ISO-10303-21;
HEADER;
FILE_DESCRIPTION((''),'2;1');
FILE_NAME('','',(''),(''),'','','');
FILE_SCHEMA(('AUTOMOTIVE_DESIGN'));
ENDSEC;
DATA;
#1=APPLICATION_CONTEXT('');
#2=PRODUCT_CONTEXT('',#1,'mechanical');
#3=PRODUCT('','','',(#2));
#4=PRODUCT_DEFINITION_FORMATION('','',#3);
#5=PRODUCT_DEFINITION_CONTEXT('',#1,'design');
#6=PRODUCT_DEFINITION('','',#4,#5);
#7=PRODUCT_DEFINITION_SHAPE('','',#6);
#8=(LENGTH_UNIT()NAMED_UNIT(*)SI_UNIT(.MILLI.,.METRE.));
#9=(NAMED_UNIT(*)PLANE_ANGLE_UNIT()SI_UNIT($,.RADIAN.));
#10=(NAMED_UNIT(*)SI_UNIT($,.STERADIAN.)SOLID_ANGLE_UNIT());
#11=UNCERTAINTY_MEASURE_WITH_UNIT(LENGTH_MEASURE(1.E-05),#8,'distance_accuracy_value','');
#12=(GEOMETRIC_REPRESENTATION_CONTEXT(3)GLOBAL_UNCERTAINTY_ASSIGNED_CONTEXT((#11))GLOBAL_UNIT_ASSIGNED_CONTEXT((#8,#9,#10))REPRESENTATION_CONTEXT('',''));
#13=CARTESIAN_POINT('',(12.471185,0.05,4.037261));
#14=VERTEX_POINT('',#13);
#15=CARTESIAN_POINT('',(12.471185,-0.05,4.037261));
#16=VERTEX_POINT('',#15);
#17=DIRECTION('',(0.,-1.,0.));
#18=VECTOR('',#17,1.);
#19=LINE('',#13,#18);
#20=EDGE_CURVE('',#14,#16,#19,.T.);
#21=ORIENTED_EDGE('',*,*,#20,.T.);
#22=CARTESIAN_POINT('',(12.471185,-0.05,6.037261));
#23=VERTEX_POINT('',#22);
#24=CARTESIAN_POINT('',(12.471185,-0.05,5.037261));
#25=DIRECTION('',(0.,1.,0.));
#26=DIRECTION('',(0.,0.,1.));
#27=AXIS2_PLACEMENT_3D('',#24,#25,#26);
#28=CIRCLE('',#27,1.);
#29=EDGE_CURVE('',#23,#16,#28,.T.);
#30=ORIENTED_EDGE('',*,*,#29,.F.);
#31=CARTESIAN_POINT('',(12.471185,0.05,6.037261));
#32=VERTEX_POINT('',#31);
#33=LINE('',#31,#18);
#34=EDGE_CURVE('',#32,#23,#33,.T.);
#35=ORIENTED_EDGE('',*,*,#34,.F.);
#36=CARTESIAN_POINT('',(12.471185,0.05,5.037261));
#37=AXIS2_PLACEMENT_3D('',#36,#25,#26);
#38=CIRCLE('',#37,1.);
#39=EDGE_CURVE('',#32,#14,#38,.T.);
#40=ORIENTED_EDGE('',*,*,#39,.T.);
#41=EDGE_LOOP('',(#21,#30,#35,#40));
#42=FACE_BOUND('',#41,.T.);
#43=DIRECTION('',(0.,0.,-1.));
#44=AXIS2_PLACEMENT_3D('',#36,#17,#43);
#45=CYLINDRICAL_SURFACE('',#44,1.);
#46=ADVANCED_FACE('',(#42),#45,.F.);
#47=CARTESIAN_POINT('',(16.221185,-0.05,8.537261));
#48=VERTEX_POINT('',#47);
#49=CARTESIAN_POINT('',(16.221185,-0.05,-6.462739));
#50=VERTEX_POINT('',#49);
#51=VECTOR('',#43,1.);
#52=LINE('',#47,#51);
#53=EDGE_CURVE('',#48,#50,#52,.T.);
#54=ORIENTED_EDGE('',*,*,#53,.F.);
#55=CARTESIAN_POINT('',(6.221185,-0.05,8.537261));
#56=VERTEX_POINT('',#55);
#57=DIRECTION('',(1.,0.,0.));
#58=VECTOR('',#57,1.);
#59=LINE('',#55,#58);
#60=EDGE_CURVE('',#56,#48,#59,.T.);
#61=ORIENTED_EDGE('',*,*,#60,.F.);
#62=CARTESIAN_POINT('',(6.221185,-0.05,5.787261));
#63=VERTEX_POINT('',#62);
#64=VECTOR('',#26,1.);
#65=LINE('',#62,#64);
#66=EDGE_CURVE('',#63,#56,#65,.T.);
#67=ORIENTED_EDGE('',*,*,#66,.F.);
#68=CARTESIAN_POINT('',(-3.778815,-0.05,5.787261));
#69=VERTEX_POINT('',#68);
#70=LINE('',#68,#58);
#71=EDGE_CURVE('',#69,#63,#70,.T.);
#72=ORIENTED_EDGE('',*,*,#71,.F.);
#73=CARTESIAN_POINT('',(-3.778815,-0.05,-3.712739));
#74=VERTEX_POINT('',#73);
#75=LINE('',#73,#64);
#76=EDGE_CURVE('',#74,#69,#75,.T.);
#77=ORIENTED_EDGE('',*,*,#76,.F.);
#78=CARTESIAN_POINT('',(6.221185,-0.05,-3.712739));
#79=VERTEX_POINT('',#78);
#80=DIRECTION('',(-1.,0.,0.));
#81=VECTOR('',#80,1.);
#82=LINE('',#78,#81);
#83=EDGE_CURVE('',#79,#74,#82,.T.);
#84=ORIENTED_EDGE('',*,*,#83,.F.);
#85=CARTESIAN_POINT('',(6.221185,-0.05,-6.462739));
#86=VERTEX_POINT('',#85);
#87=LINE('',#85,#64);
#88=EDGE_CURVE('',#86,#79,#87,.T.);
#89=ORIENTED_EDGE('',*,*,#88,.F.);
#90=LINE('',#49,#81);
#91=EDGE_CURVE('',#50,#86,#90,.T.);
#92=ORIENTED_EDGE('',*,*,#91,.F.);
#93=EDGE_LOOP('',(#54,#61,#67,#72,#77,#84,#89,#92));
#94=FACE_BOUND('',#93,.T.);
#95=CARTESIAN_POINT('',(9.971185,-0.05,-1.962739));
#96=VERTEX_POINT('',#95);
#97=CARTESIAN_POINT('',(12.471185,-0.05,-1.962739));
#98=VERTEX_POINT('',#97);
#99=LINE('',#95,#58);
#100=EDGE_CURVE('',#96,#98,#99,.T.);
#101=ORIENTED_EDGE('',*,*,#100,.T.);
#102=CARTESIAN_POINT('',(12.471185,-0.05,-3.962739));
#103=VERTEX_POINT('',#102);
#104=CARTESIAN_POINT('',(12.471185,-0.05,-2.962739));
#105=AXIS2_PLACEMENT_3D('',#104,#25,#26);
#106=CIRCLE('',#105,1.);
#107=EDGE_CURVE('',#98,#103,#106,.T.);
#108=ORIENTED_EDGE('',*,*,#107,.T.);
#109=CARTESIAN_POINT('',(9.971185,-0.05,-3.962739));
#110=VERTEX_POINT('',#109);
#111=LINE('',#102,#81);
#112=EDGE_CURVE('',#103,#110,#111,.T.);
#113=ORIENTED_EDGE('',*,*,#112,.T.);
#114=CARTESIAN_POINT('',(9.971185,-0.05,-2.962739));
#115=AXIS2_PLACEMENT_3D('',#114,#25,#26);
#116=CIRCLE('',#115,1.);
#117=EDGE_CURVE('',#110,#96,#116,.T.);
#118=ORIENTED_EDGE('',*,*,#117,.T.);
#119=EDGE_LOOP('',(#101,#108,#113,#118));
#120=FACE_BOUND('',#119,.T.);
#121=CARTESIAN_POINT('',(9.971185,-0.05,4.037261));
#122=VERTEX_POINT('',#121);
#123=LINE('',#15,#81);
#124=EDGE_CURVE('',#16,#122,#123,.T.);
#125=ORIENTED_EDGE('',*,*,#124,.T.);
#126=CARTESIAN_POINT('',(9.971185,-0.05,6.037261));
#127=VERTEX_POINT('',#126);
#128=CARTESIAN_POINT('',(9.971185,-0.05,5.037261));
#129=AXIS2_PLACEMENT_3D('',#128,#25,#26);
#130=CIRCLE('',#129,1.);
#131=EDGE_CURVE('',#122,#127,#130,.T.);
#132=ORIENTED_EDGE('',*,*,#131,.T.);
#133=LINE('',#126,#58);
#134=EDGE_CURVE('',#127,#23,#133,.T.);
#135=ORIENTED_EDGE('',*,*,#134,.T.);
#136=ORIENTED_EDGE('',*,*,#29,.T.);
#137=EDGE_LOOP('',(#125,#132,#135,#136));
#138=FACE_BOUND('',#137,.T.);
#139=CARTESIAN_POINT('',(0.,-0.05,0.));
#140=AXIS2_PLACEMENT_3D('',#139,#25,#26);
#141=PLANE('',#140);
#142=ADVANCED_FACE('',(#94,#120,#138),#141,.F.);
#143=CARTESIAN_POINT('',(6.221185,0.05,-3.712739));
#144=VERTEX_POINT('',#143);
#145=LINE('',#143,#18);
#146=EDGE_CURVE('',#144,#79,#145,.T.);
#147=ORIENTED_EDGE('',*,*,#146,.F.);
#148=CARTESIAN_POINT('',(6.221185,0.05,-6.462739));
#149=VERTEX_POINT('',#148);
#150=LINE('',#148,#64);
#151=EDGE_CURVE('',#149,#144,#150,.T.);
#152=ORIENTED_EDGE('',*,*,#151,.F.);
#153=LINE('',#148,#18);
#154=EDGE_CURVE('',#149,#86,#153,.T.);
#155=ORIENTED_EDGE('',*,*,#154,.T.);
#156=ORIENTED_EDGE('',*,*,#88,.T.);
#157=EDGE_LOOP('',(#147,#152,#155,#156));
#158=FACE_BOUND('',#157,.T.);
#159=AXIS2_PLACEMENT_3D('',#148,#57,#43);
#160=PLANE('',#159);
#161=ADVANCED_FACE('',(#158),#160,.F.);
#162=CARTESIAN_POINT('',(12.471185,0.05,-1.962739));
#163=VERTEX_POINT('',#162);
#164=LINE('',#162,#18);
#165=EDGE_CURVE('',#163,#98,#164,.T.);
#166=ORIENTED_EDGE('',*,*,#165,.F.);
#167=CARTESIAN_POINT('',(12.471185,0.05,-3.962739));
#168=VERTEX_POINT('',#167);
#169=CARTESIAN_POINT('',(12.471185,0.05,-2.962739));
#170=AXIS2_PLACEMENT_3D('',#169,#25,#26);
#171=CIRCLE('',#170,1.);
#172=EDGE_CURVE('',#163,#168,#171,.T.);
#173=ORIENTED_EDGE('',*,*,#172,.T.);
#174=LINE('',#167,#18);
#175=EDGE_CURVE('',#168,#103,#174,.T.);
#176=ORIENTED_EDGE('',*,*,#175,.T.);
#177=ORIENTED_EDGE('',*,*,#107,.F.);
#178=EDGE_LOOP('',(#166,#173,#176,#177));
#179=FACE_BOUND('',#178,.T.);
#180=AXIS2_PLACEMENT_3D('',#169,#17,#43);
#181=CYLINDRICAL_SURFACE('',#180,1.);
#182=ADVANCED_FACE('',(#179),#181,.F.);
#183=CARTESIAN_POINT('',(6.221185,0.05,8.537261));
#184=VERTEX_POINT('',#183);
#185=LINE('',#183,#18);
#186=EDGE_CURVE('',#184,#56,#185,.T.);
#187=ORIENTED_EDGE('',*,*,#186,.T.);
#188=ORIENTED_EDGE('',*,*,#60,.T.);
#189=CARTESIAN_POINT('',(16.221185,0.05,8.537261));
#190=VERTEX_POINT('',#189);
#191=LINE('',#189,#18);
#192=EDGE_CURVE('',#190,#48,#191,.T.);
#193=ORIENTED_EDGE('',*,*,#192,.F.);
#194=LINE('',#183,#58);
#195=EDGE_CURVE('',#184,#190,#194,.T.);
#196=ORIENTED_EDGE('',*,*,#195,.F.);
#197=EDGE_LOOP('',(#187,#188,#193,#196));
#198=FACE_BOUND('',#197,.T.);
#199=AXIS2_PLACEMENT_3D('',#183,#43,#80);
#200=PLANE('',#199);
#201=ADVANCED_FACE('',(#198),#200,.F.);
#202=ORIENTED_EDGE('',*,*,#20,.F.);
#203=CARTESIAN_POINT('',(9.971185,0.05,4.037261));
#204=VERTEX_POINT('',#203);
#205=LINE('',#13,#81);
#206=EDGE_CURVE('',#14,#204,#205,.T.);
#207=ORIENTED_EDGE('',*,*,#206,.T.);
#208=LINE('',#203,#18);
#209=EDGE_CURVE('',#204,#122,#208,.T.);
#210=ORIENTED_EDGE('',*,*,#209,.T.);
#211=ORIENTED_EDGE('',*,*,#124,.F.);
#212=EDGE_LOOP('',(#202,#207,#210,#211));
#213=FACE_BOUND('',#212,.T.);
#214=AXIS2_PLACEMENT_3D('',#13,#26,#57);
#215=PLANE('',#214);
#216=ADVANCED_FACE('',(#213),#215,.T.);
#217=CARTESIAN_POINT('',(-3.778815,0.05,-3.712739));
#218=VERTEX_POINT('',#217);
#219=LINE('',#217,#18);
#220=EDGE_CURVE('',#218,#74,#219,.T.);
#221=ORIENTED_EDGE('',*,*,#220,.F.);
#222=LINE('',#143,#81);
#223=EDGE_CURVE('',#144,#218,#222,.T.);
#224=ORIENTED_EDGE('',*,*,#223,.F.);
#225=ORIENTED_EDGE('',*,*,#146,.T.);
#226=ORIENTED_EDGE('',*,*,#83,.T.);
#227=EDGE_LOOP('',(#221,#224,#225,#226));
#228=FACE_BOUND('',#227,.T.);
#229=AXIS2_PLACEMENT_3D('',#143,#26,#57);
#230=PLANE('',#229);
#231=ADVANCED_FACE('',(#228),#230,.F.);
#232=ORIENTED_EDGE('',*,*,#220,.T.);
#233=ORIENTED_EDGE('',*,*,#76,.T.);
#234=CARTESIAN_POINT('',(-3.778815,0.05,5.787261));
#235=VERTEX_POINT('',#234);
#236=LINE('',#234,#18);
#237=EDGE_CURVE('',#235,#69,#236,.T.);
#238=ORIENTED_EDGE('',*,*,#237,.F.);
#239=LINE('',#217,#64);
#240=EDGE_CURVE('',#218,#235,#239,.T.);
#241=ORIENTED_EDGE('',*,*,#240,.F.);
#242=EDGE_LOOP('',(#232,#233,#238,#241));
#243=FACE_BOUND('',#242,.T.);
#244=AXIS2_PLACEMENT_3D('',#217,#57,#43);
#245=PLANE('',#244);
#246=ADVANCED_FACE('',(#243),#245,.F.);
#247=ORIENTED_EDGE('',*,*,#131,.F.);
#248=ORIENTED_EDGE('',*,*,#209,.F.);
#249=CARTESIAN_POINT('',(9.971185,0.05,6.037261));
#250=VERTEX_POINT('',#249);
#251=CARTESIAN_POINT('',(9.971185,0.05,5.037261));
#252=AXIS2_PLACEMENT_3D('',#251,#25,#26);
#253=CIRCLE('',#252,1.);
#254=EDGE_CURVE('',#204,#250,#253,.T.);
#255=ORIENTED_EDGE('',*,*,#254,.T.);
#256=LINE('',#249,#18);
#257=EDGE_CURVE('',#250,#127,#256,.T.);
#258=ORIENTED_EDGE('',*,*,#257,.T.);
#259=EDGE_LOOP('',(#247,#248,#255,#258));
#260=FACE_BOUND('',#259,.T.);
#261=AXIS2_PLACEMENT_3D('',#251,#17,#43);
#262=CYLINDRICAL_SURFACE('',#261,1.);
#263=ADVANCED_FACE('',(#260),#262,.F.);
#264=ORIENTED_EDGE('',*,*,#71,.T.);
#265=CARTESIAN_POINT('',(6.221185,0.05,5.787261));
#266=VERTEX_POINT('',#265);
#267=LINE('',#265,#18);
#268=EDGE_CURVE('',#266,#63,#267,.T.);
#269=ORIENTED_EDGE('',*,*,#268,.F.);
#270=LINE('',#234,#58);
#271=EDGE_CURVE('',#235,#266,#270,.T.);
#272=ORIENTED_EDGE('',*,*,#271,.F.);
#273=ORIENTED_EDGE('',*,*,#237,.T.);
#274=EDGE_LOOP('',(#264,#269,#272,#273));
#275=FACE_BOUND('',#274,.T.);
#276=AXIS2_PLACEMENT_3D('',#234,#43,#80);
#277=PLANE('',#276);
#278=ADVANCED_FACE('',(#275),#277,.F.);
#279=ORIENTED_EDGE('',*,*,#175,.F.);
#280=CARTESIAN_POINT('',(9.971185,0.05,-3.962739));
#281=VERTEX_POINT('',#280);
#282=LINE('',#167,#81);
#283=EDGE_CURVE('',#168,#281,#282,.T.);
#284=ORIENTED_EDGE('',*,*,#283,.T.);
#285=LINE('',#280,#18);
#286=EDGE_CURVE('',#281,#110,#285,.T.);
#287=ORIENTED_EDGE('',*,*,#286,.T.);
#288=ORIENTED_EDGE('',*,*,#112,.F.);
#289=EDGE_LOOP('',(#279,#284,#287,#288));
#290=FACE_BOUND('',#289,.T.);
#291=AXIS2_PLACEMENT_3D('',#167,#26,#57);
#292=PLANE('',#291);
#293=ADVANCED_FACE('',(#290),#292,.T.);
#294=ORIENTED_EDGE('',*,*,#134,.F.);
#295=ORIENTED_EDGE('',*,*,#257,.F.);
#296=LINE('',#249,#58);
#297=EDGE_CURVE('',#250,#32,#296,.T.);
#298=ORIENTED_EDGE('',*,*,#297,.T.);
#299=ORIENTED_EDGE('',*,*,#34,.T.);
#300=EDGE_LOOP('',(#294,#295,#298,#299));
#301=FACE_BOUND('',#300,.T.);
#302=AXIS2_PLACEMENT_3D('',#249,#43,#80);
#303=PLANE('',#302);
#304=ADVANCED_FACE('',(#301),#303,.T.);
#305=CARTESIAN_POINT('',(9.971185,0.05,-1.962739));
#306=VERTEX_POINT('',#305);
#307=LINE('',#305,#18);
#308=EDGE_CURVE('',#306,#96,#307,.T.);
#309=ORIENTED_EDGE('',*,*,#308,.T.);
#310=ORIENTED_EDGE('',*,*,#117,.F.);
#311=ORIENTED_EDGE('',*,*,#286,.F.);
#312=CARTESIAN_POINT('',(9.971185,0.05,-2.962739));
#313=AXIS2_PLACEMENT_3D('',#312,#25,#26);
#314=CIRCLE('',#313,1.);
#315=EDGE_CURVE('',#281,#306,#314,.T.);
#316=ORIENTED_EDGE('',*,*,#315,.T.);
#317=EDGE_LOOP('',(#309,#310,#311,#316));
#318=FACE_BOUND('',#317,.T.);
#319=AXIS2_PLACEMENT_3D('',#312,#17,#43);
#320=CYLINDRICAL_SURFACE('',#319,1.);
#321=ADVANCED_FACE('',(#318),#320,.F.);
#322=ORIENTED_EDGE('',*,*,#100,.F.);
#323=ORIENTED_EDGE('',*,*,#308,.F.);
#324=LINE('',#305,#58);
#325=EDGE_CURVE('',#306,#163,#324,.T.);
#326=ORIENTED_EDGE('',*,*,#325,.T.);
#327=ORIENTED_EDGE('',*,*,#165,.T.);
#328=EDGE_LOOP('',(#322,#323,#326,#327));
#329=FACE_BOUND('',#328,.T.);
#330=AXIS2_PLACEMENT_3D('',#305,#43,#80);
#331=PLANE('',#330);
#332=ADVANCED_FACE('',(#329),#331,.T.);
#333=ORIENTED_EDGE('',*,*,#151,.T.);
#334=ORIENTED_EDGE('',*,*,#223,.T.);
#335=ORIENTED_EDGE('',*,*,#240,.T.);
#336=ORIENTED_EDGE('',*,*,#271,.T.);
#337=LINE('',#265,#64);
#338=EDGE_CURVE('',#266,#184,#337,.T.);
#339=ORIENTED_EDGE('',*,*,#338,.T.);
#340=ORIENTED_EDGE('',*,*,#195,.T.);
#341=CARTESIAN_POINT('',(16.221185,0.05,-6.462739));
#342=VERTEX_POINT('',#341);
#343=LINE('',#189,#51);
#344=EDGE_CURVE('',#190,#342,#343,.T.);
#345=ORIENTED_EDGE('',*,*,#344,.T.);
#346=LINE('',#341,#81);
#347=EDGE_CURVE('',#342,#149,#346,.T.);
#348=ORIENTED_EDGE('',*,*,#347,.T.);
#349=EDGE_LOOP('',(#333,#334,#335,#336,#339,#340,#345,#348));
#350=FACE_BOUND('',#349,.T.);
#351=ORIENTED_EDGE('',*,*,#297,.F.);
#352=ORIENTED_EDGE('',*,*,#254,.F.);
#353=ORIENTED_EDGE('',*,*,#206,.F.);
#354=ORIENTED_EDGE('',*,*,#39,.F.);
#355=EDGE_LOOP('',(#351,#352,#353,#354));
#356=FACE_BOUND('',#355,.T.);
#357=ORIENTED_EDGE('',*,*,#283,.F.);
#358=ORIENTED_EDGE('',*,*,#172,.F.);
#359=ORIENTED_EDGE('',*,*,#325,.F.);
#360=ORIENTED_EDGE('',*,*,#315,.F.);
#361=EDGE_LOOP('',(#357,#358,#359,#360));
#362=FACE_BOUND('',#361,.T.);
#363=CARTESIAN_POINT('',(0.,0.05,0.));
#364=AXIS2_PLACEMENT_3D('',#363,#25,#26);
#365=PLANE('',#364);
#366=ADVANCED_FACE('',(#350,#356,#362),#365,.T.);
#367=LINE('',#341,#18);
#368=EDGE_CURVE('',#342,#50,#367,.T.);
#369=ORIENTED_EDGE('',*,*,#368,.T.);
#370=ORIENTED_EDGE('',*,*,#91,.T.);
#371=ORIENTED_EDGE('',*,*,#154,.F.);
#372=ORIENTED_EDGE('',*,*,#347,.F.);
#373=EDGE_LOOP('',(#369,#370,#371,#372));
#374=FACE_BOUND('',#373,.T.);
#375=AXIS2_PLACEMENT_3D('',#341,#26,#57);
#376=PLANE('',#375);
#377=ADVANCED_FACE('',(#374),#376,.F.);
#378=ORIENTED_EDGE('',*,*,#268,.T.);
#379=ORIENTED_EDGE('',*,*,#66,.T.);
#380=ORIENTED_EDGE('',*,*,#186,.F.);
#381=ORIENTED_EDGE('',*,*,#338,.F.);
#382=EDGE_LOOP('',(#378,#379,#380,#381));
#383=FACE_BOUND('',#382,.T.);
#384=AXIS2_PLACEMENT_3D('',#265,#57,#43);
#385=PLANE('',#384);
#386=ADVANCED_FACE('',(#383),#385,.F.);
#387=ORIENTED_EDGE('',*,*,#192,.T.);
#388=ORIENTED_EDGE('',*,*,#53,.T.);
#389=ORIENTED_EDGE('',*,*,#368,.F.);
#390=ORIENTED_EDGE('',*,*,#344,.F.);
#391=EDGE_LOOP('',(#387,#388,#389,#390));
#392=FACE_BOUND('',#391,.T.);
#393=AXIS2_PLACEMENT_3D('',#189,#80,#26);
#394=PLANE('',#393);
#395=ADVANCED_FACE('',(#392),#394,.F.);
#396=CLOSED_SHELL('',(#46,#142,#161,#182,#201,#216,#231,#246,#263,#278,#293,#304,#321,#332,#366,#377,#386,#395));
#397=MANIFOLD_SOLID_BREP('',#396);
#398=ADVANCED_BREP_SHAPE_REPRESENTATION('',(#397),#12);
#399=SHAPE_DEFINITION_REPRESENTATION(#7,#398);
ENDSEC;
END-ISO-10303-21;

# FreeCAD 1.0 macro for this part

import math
import FreeCAD as App
import Part
import Sketcher

V = App.Vector

doc = App.newDocument("Part")
params = doc.addObject("Spreadsheet::Sheet", "Params")
for row, (alias, value) in enumerate([
    ("sketch1_radius", "1 mm"),
    ("sketch1_width", "10 mm"),
    ("sketch1_height", "15 mm"),
    ("sketch1_width2", "2.5 mm"),
    ("sketch1_height2", "9.5 mm"),
    ("pad1_length", "0.1 mm"),
], start=1):
    params.set(f"A{row}", alias)
    params.set(f"B{row}", "=" + value)
    params.setAlias(f"B{row}", alias)

body = doc.addObject("PartDesign::Body", "Body")

sketch1 = body.newObject("Sketcher::SketchObject", "Sketch")
sketch1.AttachmentSupport = (doc.getObject("XZ_Plane"), [""])
sketch1.MapMode = "FlatFace"
sketch1.addGeometry(Part.LineSegment(V(-3.8, 5.8, 0), V(6.2, 5.8, 0)), False)
sketch1.addGeometry(Part.LineSegment(V(6.2, 5.8, 0), V(6.2, 8.5, 0)), False)
sketch1.addGeometry(Part.LineSegment(V(6.2, 8.5, 0), V(16.2, 8.5, 0)), False)
sketch1.addGeometry(Part.LineSegment(V(16.2, 8.5, 0), V(16.2, -6.5, 0)), False)
sketch1.addGeometry(Part.LineSegment(V(16.2, -6.5, 0), V(6.2, -6.5, 0)), False)
sketch1.addGeometry(Part.LineSegment(V(6.2, -6.5, 0), V(6.2, -3.7, 0)), False)
sketch1.addGeometry(Part.LineSegment(V(6.2, -3.7, 0), V(-3.8, -3.7, 0)), False)
sketch1.addGeometry(Part.LineSegment(V(-3.8, -3.7, 0), V(-3.8, 5.8, 0)), False)
sketch1.addGeometry(Part.LineSegment(V(10, 4, 0), V(12.5, 4, 0)), False)
sketch1.addGeometry(Part.ArcOfCircle(Part.Circle(V(12.5, 5, 0), V(0, 0, 1), 1), math.radians(-90), math.radians(90)), False)
sketch1.addGeometry(Part.LineSegment(V(12.5, 6, 0), V(10, 6, 0)), False)
sketch1.addGeometry(Part.ArcOfCircle(Part.Circle(V(10, 5, 0), V(0, 0, 1), 1), math.radians(90), math.radians(270)), False)
sketch1.addGeometry(Part.LineSegment(V(10, -4, 0), V(12.5, -4, 0)), False)
sketch1.addGeometry(Part.ArcOfCircle(Part.Circle(V(12.5, -3, 0), V(0, 0, 1), 1), math.radians(-90), math.radians(90)), False)
sketch1.addGeometry(Part.LineSegment(V(12.5, -2, 0), V(10, -2, 0)), False)
sketch1.addGeometry(Part.ArcOfCircle(Part.Circle(V(10, -3, 0), V(0, 0, 1), 1), math.radians(90), math.radians(270)), False)
sketch1.addConstraint(Sketcher.Constraint("Coincident", 0, 2, 1, 1))
sketch1.addConstraint(Sketcher.Constraint("Coincident", 1, 2, 2, 1))
sketch1.addConstraint(Sketcher.Constraint("Coincident", 2, 2, 3, 1))
sketch1.addConstraint(Sketcher.Constraint("Coincident", 3, 2, 4, 1))
sketch1.addConstraint(Sketcher.Constraint("Coincident", 4, 2, 5, 1))
sketch1.addConstraint(Sketcher.Constraint("Coincident", 5, 2, 6, 1))
sketch1.addConstraint(Sketcher.Constraint("Coincident", 6, 2, 7, 1))
sketch1.addConstraint(Sketcher.Constraint("Coincident", 7, 2, 0, 1))
sketch1.addConstraint(Sketcher.Constraint("Tangent", 8, 2, 9, 1))
sketch1.addConstraint(Sketcher.Constraint("Tangent", 9, 2, 10, 1))
sketch1.addConstraint(Sketcher.Constraint("Tangent", 10, 2, 11, 1))
sketch1.addConstraint(Sketcher.Constraint("Tangent", 11, 2, 8, 1))
sketch1.addConstraint(Sketcher.Constraint("Tangent", 12, 2, 13, 1))
sketch1.addConstraint(Sketcher.Constraint("Tangent", 13, 2, 14, 1))
sketch1.addConstraint(Sketcher.Constraint("Tangent", 14, 2, 15, 1))
sketch1.addConstraint(Sketcher.Constraint("Tangent", 15, 2, 12, 1))
sketch1.addConstraint(Sketcher.Constraint("Horizontal", 0))
sketch1.addConstraint(Sketcher.Constraint("Vertical", 1))
sketch1.addConstraint(Sketcher.Constraint("Horizontal", 2))
sketch1.addConstraint(Sketcher.Constraint("Vertical", 3))
sketch1.addConstraint(Sketcher.Constraint("Horizontal", 4))
sketch1.addConstraint(Sketcher.Constraint("Vertical", 5))
sketch1.addConstraint(Sketcher.Constraint("Horizontal", 6))
sketch1.addConstraint(Sketcher.Constraint("Vertical", 7))
sketch1.addConstraint(Sketcher.Constraint("Horizontal", 8))
sketch1.addConstraint(Sketcher.Constraint("Horizontal", 10))
sketch1.addConstraint(Sketcher.Constraint("Horizontal", 12))
sketch1.addConstraint(Sketcher.Constraint("Horizontal", 14))
sketch1.addConstraint(Sketcher.Constraint("Equal", 11, 13))
sketch1.addConstraint(Sketcher.Constraint("Vertical", 9, 3, 13, 3))
sketch1.addConstraint(Sketcher.Constraint("Vertical", 11, 3, 15, 3))
sketch1.addConstraint(Sketcher.Constraint("Vertical", 1, 2, 4, 2))
sketch1.addConstraint(Sketcher.Constraint("Equal", 0, 2))
sketch1.addConstraint(Sketcher.Constraint("Equal", 1, 5))
sketch1.addConstraint(Sketcher.Constraint("Radius", 9, 1.0))
sketch1.addConstraint(Sketcher.Constraint("DistanceX", 0, 1, 0, 2, 10.0))
sketch1.addConstraint(Sketcher.Constraint("DistanceY", 3, 2, 3, 1, 15.0))
sketch1.addConstraint(Sketcher.Constraint("DistanceX", 8, 1, 8, 2, 2.5))
sketch1.addConstraint(Sketcher.Constraint("DistanceY", 7, 1, 7, 2, 9.5))
sketch1.addConstraint(Sketcher.Constraint("DistanceY", 13, 3, 9, 3, 8.0))
sketch1.addConstraint(Sketcher.Constraint("DistanceY", 11, 3, 1, 2, 3.5))
sketch1.addConstraint(Sketcher.Constraint("DistanceX", 0, 2, 11, 3, 3.75))
sketch1.addConstraint(Sketcher.Constraint("DistanceY", -1, 1, 9, 3, 5.037261))
sketch1.addConstraint(Sketcher.Constraint("DistanceX", -1, 1, 9, 3, 12.471185))
sketch1.setExpression("Constraints[34]", "Params.sketch1_radius")
sketch1.setExpression("Constraints[35]", "Params.sketch1_width")
sketch1.setExpression("Constraints[36]", "Params.sketch1_height")
sketch1.setExpression("Constraints[37]", "Params.sketch1_width2")
sketch1.setExpression("Constraints[38]", "Params.sketch1_height2")
pad1 = body.newObject("PartDesign::Pad", "Pad")
pad1.Profile = sketch1
pad1.setExpression("Length", "Params.pad1_length")
pad1.Midplane = True

doc.recompute()
